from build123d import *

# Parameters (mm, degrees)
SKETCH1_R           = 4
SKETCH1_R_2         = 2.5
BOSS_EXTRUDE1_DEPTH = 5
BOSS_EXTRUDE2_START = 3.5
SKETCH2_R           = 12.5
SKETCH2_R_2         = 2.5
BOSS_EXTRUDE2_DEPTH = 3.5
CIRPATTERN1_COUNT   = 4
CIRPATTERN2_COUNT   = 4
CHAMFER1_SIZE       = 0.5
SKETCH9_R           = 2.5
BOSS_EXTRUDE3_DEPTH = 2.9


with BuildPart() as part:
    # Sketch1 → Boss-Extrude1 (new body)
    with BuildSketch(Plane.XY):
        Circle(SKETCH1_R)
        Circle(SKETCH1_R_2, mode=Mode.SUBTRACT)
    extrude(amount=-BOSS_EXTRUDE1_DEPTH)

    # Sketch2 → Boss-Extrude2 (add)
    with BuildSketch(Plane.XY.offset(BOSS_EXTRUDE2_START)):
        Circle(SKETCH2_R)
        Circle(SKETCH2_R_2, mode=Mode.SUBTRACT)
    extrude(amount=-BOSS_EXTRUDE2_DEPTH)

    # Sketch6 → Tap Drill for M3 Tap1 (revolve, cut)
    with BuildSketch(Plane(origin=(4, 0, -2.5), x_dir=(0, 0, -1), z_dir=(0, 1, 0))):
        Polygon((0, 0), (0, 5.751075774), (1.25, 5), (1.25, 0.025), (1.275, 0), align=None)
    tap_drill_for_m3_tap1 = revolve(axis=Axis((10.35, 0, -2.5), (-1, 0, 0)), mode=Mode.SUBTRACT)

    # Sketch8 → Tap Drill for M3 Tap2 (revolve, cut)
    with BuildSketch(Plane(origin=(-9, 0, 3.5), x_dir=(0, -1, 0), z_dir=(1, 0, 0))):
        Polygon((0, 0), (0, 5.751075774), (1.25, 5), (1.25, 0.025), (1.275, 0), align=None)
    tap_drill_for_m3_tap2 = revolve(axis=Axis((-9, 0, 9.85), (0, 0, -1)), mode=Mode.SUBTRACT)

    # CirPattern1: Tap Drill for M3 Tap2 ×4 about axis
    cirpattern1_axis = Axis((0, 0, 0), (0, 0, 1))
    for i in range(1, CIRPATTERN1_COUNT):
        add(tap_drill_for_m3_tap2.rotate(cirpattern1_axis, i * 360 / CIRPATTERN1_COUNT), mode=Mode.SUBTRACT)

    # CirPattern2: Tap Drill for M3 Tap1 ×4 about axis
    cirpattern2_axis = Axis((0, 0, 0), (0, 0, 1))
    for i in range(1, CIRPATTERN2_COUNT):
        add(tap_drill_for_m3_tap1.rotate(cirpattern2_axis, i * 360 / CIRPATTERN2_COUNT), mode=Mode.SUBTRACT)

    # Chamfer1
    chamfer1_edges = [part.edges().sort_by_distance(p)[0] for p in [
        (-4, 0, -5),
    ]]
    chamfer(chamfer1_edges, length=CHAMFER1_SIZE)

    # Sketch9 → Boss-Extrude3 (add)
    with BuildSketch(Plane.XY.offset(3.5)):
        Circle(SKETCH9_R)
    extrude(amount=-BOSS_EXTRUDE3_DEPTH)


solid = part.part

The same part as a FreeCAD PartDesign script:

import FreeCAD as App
import Part
import Sketcher
Q = App.Units.Quantity


def edges_at(feature, points):
    """Names of the edges that pass closest to the given points."""
    edges = feature.Shape.Edges
    near = lambda p: min(range(len(edges)), key=lambda i: edges[i].distToShape(Part.Vertex(*p))[0])
    return sorted({f"Edge{near(p) + 1}" for p in points})


def add_polygon(sketch, points):
    """Adds a closed chain of lines whose ends are joined by coincident constraints."""
    first, n = sketch.GeometryCount, len(points)
    for a, b in zip(points, points[1:] + points[:1]):
        sketch.addGeometry(Part.LineSegment(App.Vector(*a, 0), App.Vector(*b, 0)), False)
    for i in range(n):
        sketch.addConstraint(Sketcher.Constraint("Coincident", first + i, 2, first + (i + 1) % n, 1))

doc = App.newDocument("Part")
body = doc.addObject("PartDesign::Body", "Body")

sketch1 = body.newObject("Sketcher::SketchObject", "Sketch")
sketch1.AttachmentSupport = (doc.getObject("XY_Plane"), [""])
sketch1.MapMode = "FlatFace"
sketch1.addGeometry([
    Part.Circle(App.Vector(0, 0, 0), App.Vector(0, 0, 1), 4),
    Part.Circle(App.Vector(0, 0, 0), App.Vector(0, 0, 1), 2.5),
], False)
sketch1.addConstraint([
    Sketcher.Constraint("Coincident", 0, 3, -1, 1),
    Sketcher.Constraint("Coincident", 1, 3, -1, 1),
    Sketcher.Constraint("Diameter", 0, Q("8 mm")),
    Sketcher.Constraint("Diameter", 1, Q("5 mm")),
])
pad1 = body.newObject("PartDesign::Pad", "Pad")
pad1.Profile = sketch1
pad1.Length = 5
pad1.Reversed = True

sketch2 = body.newObject("Sketcher::SketchObject", "Sketch001")
sketch2.AttachmentSupport = (doc.getObject("XY_Plane"), [""])
sketch2.MapMode = "FlatFace"
sketch2.AttachmentOffset = App.Placement(App.Vector(0, 0, 3.5), App.Rotation())
sketch2.addGeometry([
    Part.Circle(App.Vector(0, 0, 0), App.Vector(0, 0, 1), 12.5),
    Part.Circle(App.Vector(0, 0, 0), App.Vector(0, 0, 1), 2.5),
], False)
sketch2.addConstraint([
    Sketcher.Constraint("Coincident", 0, 3, -1, 1),
    Sketcher.Constraint("Coincident", 1, 3, -1, 1),
    Sketcher.Constraint("Diameter", 0, Q("25 mm")),
    Sketcher.Constraint("Diameter", 1, Q("5 mm")),
])
pad2 = body.newObject("PartDesign::Pad", "Pad001")
pad2.Profile = sketch2
pad2.Length = 3.5
pad2.Reversed = True

sketch3 = body.newObject("Sketcher::SketchObject", "Sketch002")
sketch3.AttachmentSupport = (doc.getObject("XZ_Plane"), [""])
sketch3.MapMode = "FlatFace"
add_polygon(sketch3, [(-1.751, -2.5), (4, -2.5), (4, -3.775), (3.975, -3.75), (-1, -3.75)])
sketch3.addGeometry(Part.LineSegment(App.Vector(4, -2.5, 0), App.Vector(-1.751, -2.5, 0)), True)
sketch3.addConstraint([
    Sketcher.Constraint("Horizontal", 0),
    Sketcher.Constraint("Vertical", 1),
    Sketcher.Constraint("Horizontal", 3),
    Sketcher.Constraint("Horizontal", 5),
    Sketcher.Constraint("Coincident", 5, 1, 0, 2),
    Sketcher.Constraint("Equal", 0, 5),
    Sketcher.Constraint("Angle", 2, Q("135 deg")),
    Sketcher.Constraint("Angle", 4, Q("121 deg")),
    Sketcher.Constraint("DistanceX", -1, 1, 0, 2, Q("4 mm")),
    Sketcher.Constraint("DistanceX", 3, 2, -1, 1, Q("1 mm")),
    Sketcher.Constraint("DistanceY", 0, 2, -1, 1, Q("2.5 mm")),
    Sketcher.Constraint("DistanceX", 3, 2, 3, 1, Q("4.975 mm")),
    Sketcher.Constraint("DistanceY", 1, 2, 1, 1, Q("1.275 mm")),
])
groove = body.newObject("PartDesign::Groove", "Groove")
groove.Profile = sketch3
groove.ReferenceAxis = (sketch3, ["Axis0"])
groove.Angle = 360

sketch4 = body.newObject("Sketcher::SketchObject", "Sketch003")
sketch4.AttachmentSupport = (doc.getObject("YZ_Plane"), [""])
sketch4.MapMode = "FlatFace"
sketch4.AttachmentOffset = App.Placement(App.Vector(0, 0, -9), App.Rotation())
add_polygon(sketch4, [(0, -2.251), (0, 3.5), (-1.275, 3.5), (-1.25, 3.475), (-1.25, -1.5)])
sketch4.addConstraint([
    Sketcher.Constraint("Vertical", 0),
    Sketcher.Constraint("Horizontal", 1),
    Sketcher.Constraint("Vertical", 3),
    Sketcher.Constraint("PointOnObject", 0, 2, -2),
    Sketcher.Constraint("Angle", 2, Q("-45 deg")),
    Sketcher.Constraint("Angle", 4, Q("-31 deg")),
    Sketcher.Constraint("DistanceY", 3, 2, 1, 2, Q("5 mm")),
    Sketcher.Constraint("DistanceY", -1, 1, 0, 2, Q("3.5 mm")),
    Sketcher.Constraint("DistanceX", 1, 2, 1, 1, Q("1.275 mm")),
    Sketcher.Constraint("DistanceY", 3, 2, 3, 1, Q("4.975 mm")),
])
groove2 = body.newObject("PartDesign::Groove", "Groove001")
groove2.Profile = sketch4
groove2.ReferenceAxis = (sketch4, ["V_Axis"])
groove2.Angle = 360
doc.recompute()

polarpattern = body.newObject("PartDesign::PolarPattern", "PolarPattern")
polarpattern.Originals = [groove2]
polarpattern.Axis = (doc.getObject("Z_Axis"), [""])
polarpattern.Angle = 360
polarpattern.Occurrences = 4
body.Tip = polarpattern
doc.recompute()

polarpattern2 = body.newObject("PartDesign::PolarPattern", "PolarPattern001")
polarpattern2.Originals = [groove]
polarpattern2.Axis = (doc.getObject("Z_Axis"), [""])
polarpattern2.Angle = 360
polarpattern2.Occurrences = 4
body.Tip = polarpattern2
doc.recompute()

chamfer = body.newObject("PartDesign::Chamfer", "Chamfer")
chamfer.Base = (polarpattern2, edges_at(polarpattern2, [(-4, 0, -5)]))
chamfer.Size = 0.5

sketch5 = body.newObject("Sketcher::SketchObject", "Sketch004")
sketch5.AttachmentSupport = (doc.getObject("XY_Plane"), [""])
sketch5.MapMode = "FlatFace"
sketch5.AttachmentOffset = App.Placement(App.Vector(0, 0, 3.5), App.Rotation())
sketch5.addGeometry(Part.Circle(App.Vector(0, 0, 0), App.Vector(0, 0, 1), 2.5), False)
sketch5.addConstraint([
    Sketcher.Constraint("Coincident", 0, 3, -1, 1),
    Sketcher.Constraint("Diameter", 0, Q("5 mm")),
])
pad3 = body.newObject("PartDesign::Pad", "Pad002")
pad3.Profile = sketch5
pad3.Length = 2.9
pad3.Reversed = True

doc.recompute()
